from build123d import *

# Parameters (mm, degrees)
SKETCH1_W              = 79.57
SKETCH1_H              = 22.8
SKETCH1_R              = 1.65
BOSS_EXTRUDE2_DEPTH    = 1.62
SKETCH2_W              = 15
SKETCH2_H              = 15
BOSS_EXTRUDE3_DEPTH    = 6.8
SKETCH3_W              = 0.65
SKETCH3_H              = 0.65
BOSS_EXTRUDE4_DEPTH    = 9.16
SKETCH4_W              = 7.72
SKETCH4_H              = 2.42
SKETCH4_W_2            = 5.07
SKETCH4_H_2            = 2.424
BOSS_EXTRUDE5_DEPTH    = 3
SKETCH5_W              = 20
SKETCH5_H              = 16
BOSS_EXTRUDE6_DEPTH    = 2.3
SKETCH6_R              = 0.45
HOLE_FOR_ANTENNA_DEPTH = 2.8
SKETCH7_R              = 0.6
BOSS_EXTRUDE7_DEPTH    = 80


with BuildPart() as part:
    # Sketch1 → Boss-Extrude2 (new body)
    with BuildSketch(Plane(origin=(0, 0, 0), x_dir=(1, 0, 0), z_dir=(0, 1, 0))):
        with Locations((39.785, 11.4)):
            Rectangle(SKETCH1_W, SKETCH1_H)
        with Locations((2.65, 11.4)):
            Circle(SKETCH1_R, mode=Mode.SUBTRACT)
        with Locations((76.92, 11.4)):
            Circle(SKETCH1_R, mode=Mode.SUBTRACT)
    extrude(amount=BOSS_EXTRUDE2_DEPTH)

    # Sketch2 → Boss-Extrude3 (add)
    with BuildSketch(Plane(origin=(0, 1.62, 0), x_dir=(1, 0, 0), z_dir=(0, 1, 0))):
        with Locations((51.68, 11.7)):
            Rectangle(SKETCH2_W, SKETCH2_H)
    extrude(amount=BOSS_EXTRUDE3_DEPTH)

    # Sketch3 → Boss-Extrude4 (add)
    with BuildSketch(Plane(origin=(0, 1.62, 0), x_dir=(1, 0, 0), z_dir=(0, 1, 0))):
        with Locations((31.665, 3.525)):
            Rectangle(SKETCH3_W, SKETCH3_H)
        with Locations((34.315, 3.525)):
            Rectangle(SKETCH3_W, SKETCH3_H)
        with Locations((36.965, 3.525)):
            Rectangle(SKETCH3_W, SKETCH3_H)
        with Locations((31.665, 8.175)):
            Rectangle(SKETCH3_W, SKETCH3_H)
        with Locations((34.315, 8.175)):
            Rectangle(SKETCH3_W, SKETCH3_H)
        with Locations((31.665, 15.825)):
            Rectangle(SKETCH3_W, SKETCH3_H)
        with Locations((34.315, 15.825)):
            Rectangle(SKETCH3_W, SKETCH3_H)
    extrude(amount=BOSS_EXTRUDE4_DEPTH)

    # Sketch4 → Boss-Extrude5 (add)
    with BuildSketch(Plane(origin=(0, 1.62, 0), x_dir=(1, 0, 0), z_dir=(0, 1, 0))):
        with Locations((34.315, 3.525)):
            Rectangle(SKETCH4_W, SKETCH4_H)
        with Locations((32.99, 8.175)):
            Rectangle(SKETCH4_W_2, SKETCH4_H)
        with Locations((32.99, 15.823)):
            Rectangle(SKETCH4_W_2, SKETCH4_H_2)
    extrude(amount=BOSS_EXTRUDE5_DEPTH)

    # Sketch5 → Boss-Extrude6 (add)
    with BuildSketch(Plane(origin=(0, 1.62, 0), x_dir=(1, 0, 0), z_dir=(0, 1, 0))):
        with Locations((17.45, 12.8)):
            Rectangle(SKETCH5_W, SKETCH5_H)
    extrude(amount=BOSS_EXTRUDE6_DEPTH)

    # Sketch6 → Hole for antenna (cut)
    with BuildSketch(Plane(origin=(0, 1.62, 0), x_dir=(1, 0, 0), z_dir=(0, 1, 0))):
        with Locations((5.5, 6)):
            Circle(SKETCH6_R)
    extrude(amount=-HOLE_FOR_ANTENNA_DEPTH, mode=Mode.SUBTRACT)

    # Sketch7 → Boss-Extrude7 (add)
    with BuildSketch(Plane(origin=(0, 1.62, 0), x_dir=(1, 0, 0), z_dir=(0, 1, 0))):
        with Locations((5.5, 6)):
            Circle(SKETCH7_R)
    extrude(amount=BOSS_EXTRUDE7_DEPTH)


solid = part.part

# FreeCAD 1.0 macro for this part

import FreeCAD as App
import Part
import Sketcher
Q = App.Units.Quantity


def add_polygon(sketch, points):
    """Adds a closed chain of lines whose ends are joined by coincident constraints."""
    first, n = sketch.GeometryCount, len(points)
    for a, b in zip(points, points[1:] + points[:1]):
        sketch.addGeometry(Part.LineSegment(App.Vector(*a, 0), App.Vector(*b, 0)), False)
    for i in range(n):
        sketch.addConstraint(Sketcher.Constraint("Coincident", first + i, 2, first + (i + 1) % n, 1))

doc = App.newDocument("Part")
body = doc.addObject("PartDesign::Body", "Body")

# Sketch on XZ plane
sketch1 = body.newObject("Sketcher::SketchObject", "Sketch")
sketch1.AttachmentSupport = (doc.getObject("XZ_Plane"), [""])
sketch1.MapMode = "FlatFace"
add_polygon(sketch1, [(0, -22.8), (0, 0), (79.6, 0), (79.6, -22.8)])  # lines 0-3
sketch1.addGeometry(Part.Circle(App.Vector(2.6, -11.4, 0), App.Vector(0, 0, 1), 1.6), False)  # 4
sketch1.addGeometry(Part.Circle(App.Vector(76.9, -11.4, 0), App.Vector(0, 0, 1), 1.6), False)  # 5
sketch1.addConstraint([
    Sketcher.Constraint("Vertical", 0),
    Sketcher.Constraint("Horizontal", 1),
    Sketcher.Constraint("Vertical", 2),
    Sketcher.Constraint("Horizontal", 3),
    Sketcher.Constraint("Coincident", 0, 2, -1, 1),
    Sketcher.Constraint("Equal", 4, 5),
    Sketcher.Constraint("Horizontal", 4, 3, 5, 3),
    Sketcher.Constraint("Diameter", 4, Q("3.3 mm")),
    Sketcher.Constraint("DistanceY", 0, 1, 0, 2, Q("22.8 mm")),
    Sketcher.Constraint("DistanceX", 1, 1, 1, 2, Q("79.57 mm")),
    Sketcher.Constraint("DistanceY", 4, 3, -1, 1, Q("11.4 mm")),
    Sketcher.Constraint("DistanceX", -1, 1, 4, 3, Q("2.65 mm")),
    Sketcher.Constraint("DistanceX", -1, 1, 5, 3, Q("76.92 mm")),
])
pad1 = body.newObject("PartDesign::Pad", "Pad")
pad1.Profile = sketch1
pad1.Length = 1.62
pad1.Reversed = True

# Sketch on XZ plane
sketch2 = body.newObject("Sketcher::SketchObject", "Sketch001")
sketch2.AttachmentSupport = (doc.getObject("XZ_Plane"), [""])
sketch2.MapMode = "FlatFace"
sketch2.AttachmentOffset = App.Placement(App.Vector(0, 0, -1.62), App.Rotation())
add_polygon(sketch2, [(44, -19), (44, -4), (59, -4), (59, -19)])  # lines 0-3
sketch2.addConstraint([
    Sketcher.Constraint("Vertical", 0),
    Sketcher.Constraint("Horizontal", 1),
    Sketcher.Constraint("Vertical", 2),
    Sketcher.Constraint("Horizontal", 3),
    Sketcher.Constraint("Equal", 3, 0),
    Sketcher.Constraint("DistanceX", 1, 1, 1, 2, Q("15 mm")),
    Sketcher.Constraint("DistanceY", 0, 2, -1, 1, Q("4.2 mm")),
    Sketcher.Constraint("DistanceX", -1, 1, 0, 2, Q("44.18 mm")),
])
pad2 = body.newObject("PartDesign::Pad", "Pad001")
pad2.Profile = sketch2
pad2.Length = 6.8
pad2.Reversed = True

# Sketch on XZ plane
sketch3 = body.newObject("Sketcher::SketchObject", "Sketch002")
sketch3.AttachmentSupport = (doc.getObject("XZ_Plane"), [""])
sketch3.MapMode = "FlatFace"
sketch3.AttachmentOffset = App.Placement(App.Vector(0, 0, -1.62), App.Rotation())
add_polygon(sketch3, [(31.3, -3.9), (31.3, -3.2), (32, -3.2), (32, -3.9)])  # lines 0-3
add_polygon(sketch3, [(34, -3.9), (34, -3.2), (34.6, -3.2), (34.6, -3.9)])  # lines 4-7
add_polygon(sketch3, [(36.6, -3.9), (36.6, -3.2), (37.3, -3.2), (37.3, -3.9)])  # lines 8-11
add_polygon(sketch3, [(31.3, -8.5), (31.3, -7.8), (32, -7.8), (32, -8.5)])  # lines 12-15
add_polygon(sketch3, [(34, -8.5), (34, -7.8), (34.6, -7.8), (34.6, -8.5)])  # lines 16-19
add_polygon(sketch3, [(31.3, -16.1), (31.3, -15.5), (32, -15.5), (32, -16.1)])  # lines 20-23
add_polygon(sketch3, [(34, -16.1), (34, -15.5), (34.6, -15.5), (34.6, -16.1)])  # lines 24-27
sketch3.addConstraint([
    Sketcher.Constraint("Vertical", 0),
    Sketcher.Constraint("Horizontal", 1),
    Sketcher.Constraint("Vertical", 2),
    Sketcher.Constraint("Horizontal", 3),
    Sketcher.Constraint("Vertical", 4),
    Sketcher.Constraint("Horizontal", 5),
    Sketcher.Constraint("Vertical", 6),
    Sketcher.Constraint("Horizontal", 7),
    Sketcher.Constraint("Vertical", 8),
    Sketcher.Constraint("Horizontal", 9),
    Sketcher.Constraint("Vertical", 10),
    Sketcher.Constraint("Horizontal", 11),
    Sketcher.Constraint("Vertical", 12),
    Sketcher.Constraint("Horizontal", 13),
    Sketcher.Constraint("Vertical", 14),
    Sketcher.Constraint("Horizontal", 15),
    Sketcher.Constraint("Vertical", 16),
    Sketcher.Constraint("Horizontal", 17),
    Sketcher.Constraint("Vertical", 18),
    Sketcher.Constraint("Horizontal", 19),
    Sketcher.Constraint("Vertical", 20),
    Sketcher.Constraint("Horizontal", 21),
    Sketcher.Constraint("Vertical", 22),
    Sketcher.Constraint("Horizontal", 23),
    Sketcher.Constraint("Vertical", 24),
    Sketcher.Constraint("Horizontal", 25),
    Sketcher.Constraint("Vertical", 26),
    Sketcher.Constraint("Horizontal", 27),
    Sketcher.Constraint("Horizontal", 1, 2, 4, 2),
    Sketcher.Constraint("Horizontal", 3, 2, 6, 2),
    Sketcher.Constraint("Horizontal", 5, 2, 8, 2),
    Sketcher.Constraint("Horizontal", 7, 2, 10, 2),
    Sketcher.Constraint("Horizontal", 13, 2, 16, 2),
    Sketcher.Constraint("Horizontal", 15, 2, 18, 2),
    Sketcher.Constraint("Horizontal", 21, 2, 24, 2),
    Sketcher.Constraint("Horizontal", 23, 2, 26, 2),
    Sketcher.Constraint("Vertical", 3, 2, 12, 2),
    Sketcher.Constraint("Vertical", 2, 2, 13, 2),
    Sketcher.Constraint("Vertical", 7, 2, 16, 2),
    Sketcher.Constraint("Vertical", 6, 2, 17, 2),
    Sketcher.Constraint("Vertical", 15, 2, 20, 2),
    Sketcher.Constraint("Vertical", 14, 2, 21, 2),
    Sketcher.Constraint("Vertical", 19, 2, 24, 2),
    Sketcher.Constraint("Vertical", 18, 2, 25, 2),
    Sketcher.Constraint("Equal", 3, 5),
    Sketcher.Constraint("Equal", 7, 9),
    Sketcher.Constraint("Equal", 27, 0),
    Sketcher.Constraint("Equal", 10, 12),
    Sketcher.Constraint("Equal", 18, 20),
    Sketcher.Constraint("DistanceX", 1, 2, 4, 2, Q("2 mm")),
    Sketcher.Constraint("DistanceX", 5, 2, 8, 2, Q("2 mm")),
    Sketcher.Constraint("DistanceY", 12, 2, 3, 2, Q("4 mm")),
    Sketcher.Constraint("DistanceY", 20, 2, 15, 2, Q("7 mm")),
    Sketcher.Constraint("DistanceX", 1, 1, 1, 2, Q("0.65 mm")),
    Sketcher.Constraint("DistanceY", 0, 2, -1, 1, Q("3.2 mm")),
    Sketcher.Constraint("DistanceX", -1, 1, 0, 2, Q("31.34 mm")),
])
pad3 = body.newObject("PartDesign::Pad", "Pad002")
pad3.Profile = sketch3
pad3.Length = 9.16
pad3.Reversed = True

# Sketch on XZ plane
sketch4 = body.newObject("Sketcher::SketchObject", "Sketch003")
sketch4.AttachmentSupport = (doc.getObject("XZ_Plane"), [""])
sketch4.MapMode = "FlatFace"
sketch4.AttachmentOffset = App.Placement(App.Vector(0, 0, -1.62), App.Rotation())
add_polygon(sketch4, [(30.5, -4.7), (30.5, -2.3), (38.2, -2.3), (38.2, -4.7)])  # lines 0-3
add_polygon(sketch4, [(30.5, -9.4), (30.5, -7), (35.5, -7), (35.5, -9.4)])  # lines 4-7
add_polygon(sketch4, [(30.5, -17), (30.5, -14.6), (35.5, -14.6), (35.5, -17)])  # lines 8-11
sketch4.addConstraint([
    Sketcher.Constraint("Vertical", 0),
    Sketcher.Constraint("Horizontal", 1),
    Sketcher.Constraint("Vertical", 2),
    Sketcher.Constraint("Horizontal", 3),
    Sketcher.Constraint("Vertical", 4),
    Sketcher.Constraint("Horizontal", 5),
    Sketcher.Constraint("Vertical", 6),
    Sketcher.Constraint("Horizontal", 7),
    Sketcher.Constraint("Vertical", 8),
    Sketcher.Constraint("Horizontal", 9),
    Sketcher.Constraint("Vertical", 10),
    Sketcher.Constraint("Horizontal", 11),
    Sketcher.Constraint("Vertical", 3, 2, 4, 2),
    Sketcher.Constraint("Vertical", 7, 2, 8, 2),
    Sketcher.Constraint("Vertical", 6, 2, 9, 2),
    Sketcher.Constraint("Equal", 2, 4),
    Sketcher.Constraint("DistanceX", 1, 1, 1, 2, Q("7.72 mm")),
    Sketcher.Constraint("DistanceX", 5, 1, 5, 2, Q("5.07 mm")),
    Sketcher.Constraint("DistanceY", 0, 1, 0, 2, Q("2.42 mm")),
    Sketcher.Constraint("DistanceY", 8, 1, 8, 2, Q("2.424 mm")),
    Sketcher.Constraint("DistanceY", 4, 2, 3, 2, Q("2.23 mm")),
    Sketcher.Constraint("DistanceY", 10, 2, 6, 2, Q("7.65 mm")),
    Sketcher.Constraint("DistanceX", -1, 1, 0, 2, Q("30.455 mm")),
    Sketcher.Constraint("DistanceY", 0, 2, -1, 1, Q("2.315 mm")),
])
pad4 = body.newObject("PartDesign::Pad", "Pad003")
pad4.Profile = sketch4
pad4.Length = 3
pad4.Reversed = True

# Sketch on XZ plane
sketch5 = body.newObject("Sketcher::SketchObject", "Sketch004")
sketch5.AttachmentSupport = (doc.getObject("XZ_Plane"), [""])
sketch5.MapMode = "FlatFace"
sketch5.AttachmentOffset = App.Placement(App.Vector(0, 0, -1.62), App.Rotation())
add_polygon(sketch5, [(7, -21), (7, -5), (27, -5), (27, -21)])  # lines 0-3
sketch5.addConstraint([
    Sketcher.Constraint("Vertical", 0),
    Sketcher.Constraint("Horizontal", 1),
    Sketcher.Constraint("Vertical", 2),
    Sketcher.Constraint("Horizontal", 3),
    Sketcher.Constraint("DistanceX", 1, 1, 1, 2, Q("20 mm")),
    Sketcher.Constraint("DistanceY", 0, 1, 0, 2, Q("16 mm")),
    Sketcher.Constraint("DistanceY", 0, 2, -1, 1, Q("4.8 mm")),
    Sketcher.Constraint("DistanceX", -1, 1, 0, 2, Q("7.45 mm")),
])
pad5 = body.newObject("PartDesign::Pad", "Pad004")
pad5.Profile = sketch5
pad5.Length = 2.3
pad5.Reversed = True

# Sketch on XZ plane
sketch6 = body.newObject("Sketcher::SketchObject", "Sketch005")
sketch6.AttachmentSupport = (doc.getObject("XZ_Plane"), [""])
sketch6.MapMode = "FlatFace"
sketch6.AttachmentOffset = App.Placement(App.Vector(0, 0, -1.62), App.Rotation())
sketch6.addGeometry(Part.Circle(App.Vector(5.5, -6, 0), App.Vector(0, 0, 1), 0.45), False)
sketch6.addConstraint([
    Sketcher.Constraint("Diameter", 0, Q("0.9 mm")),
    Sketcher.Constraint("DistanceY", 0, 3, -1, 1, Q("6 mm")),
    Sketcher.Constraint("DistanceX", -1, 1, 0, 3, Q("5.5 mm")),
])
pocket1 = body.newObject("PartDesign::Pocket", "Pocket")
pocket1.Profile = sketch6
pocket1.Length = 2.8
pocket1.Reversed = True

# Sketch on XZ plane
sketch7 = body.newObject("Sketcher::SketchObject", "Sketch006")
sketch7.AttachmentSupport = (doc.getObject("XZ_Plane"), [""])
sketch7.MapMode = "FlatFace"
sketch7.AttachmentOffset = App.Placement(App.Vector(0, 0, -1.62), App.Rotation())
sketch7.addGeometry(Part.Circle(App.Vector(5.5, -6, 0), App.Vector(0, 0, 1), 0.6), False)
sketch7.addConstraint([
    Sketcher.Constraint("Diameter", 0, Q("1.2 mm")),
    Sketcher.Constraint("DistanceY", 0, 3, -1, 1, Q("6 mm")),
    Sketcher.Constraint("DistanceX", -1, 1, 0, 3, Q("5.5 mm")),
])
pad6 = body.newObject("PartDesign::Pad", "Pad005")
pad6.Profile = sketch7
pad6.Length = 80
pad6.Reversed = True

doc.recompute()
